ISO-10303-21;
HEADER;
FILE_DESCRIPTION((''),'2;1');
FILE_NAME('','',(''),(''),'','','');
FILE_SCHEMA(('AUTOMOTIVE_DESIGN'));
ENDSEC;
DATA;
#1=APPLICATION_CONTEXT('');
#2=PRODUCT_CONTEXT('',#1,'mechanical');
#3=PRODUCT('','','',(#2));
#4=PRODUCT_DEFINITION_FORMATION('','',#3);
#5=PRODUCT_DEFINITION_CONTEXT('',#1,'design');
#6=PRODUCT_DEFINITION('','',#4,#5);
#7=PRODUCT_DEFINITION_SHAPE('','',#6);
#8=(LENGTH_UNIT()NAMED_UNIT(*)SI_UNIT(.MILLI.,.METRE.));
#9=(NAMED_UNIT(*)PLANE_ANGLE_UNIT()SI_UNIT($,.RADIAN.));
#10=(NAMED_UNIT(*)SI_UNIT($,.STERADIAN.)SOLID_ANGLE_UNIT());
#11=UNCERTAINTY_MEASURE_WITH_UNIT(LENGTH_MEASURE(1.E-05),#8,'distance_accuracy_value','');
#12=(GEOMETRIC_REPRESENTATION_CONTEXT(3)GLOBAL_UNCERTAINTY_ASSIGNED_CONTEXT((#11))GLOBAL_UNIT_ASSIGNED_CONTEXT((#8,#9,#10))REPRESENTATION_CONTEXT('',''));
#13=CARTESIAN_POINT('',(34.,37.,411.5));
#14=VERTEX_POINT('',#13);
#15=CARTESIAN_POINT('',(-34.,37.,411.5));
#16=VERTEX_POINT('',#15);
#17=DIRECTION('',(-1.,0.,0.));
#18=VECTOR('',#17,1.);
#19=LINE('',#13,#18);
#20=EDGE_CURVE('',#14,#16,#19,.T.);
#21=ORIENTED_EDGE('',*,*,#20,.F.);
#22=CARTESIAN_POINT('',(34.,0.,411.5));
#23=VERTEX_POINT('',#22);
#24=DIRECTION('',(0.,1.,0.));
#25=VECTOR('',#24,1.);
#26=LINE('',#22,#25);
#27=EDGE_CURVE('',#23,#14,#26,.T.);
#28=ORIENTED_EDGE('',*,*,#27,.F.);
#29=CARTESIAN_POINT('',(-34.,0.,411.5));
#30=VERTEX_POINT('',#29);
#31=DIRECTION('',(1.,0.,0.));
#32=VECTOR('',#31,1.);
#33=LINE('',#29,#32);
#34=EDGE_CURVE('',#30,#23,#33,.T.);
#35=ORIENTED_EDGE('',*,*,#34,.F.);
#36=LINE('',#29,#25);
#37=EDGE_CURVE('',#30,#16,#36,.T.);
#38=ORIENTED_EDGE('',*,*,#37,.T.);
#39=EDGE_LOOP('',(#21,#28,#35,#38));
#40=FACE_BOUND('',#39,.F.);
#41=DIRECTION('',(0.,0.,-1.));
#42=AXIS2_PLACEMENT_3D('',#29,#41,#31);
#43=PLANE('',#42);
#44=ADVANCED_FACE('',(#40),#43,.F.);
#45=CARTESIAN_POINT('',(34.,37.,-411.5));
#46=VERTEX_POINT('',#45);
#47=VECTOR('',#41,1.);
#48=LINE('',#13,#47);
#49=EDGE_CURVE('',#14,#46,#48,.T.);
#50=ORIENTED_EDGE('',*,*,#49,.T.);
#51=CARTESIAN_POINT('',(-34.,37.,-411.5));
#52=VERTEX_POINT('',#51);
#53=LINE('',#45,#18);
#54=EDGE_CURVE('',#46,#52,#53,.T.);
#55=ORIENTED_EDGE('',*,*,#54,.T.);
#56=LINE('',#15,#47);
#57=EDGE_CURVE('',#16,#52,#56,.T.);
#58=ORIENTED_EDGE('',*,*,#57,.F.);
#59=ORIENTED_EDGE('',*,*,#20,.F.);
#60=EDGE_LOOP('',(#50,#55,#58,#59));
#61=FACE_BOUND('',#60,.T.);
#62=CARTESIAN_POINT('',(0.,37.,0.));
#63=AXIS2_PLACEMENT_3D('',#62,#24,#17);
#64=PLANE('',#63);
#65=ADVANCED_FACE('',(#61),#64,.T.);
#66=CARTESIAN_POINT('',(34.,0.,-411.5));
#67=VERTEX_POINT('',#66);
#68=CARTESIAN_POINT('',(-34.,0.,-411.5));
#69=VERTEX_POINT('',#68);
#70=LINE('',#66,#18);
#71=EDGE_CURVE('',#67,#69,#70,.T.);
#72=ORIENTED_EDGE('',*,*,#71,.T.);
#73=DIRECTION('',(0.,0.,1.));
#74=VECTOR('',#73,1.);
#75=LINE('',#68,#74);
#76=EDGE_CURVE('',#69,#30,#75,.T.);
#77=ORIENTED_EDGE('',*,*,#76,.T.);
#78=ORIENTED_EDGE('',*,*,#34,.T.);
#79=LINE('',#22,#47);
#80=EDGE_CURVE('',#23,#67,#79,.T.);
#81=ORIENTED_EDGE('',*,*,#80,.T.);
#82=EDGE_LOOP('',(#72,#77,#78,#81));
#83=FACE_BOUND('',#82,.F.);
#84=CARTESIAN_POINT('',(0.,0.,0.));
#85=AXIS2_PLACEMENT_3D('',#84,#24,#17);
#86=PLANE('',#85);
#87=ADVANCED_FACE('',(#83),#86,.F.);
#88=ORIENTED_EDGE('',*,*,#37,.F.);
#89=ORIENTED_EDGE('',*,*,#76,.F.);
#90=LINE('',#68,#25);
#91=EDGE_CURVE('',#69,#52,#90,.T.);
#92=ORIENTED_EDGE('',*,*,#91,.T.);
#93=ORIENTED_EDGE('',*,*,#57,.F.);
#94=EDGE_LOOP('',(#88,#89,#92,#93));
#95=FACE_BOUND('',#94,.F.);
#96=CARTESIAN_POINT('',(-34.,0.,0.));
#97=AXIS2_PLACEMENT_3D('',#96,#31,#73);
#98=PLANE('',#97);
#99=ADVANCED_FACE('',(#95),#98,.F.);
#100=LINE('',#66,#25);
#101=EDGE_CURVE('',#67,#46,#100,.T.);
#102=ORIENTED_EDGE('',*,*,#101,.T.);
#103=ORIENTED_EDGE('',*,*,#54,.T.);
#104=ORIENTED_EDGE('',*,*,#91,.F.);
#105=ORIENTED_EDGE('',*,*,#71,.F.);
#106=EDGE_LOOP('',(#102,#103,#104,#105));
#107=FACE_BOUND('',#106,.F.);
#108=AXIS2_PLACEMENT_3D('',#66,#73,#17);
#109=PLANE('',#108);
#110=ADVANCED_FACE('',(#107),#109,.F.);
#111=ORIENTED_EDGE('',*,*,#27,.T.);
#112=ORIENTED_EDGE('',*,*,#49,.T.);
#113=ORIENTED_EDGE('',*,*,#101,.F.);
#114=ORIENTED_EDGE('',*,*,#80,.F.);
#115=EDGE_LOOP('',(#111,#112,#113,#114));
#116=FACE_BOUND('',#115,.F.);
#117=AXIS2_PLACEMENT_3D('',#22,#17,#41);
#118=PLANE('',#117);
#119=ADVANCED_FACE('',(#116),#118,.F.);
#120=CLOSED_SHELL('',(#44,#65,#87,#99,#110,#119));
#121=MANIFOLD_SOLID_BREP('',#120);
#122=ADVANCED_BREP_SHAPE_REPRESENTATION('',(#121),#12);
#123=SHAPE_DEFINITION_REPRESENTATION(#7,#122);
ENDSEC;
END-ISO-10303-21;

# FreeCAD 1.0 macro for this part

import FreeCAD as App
import Part
import Sketcher

V = App.Vector

doc = App.newDocument("Part")
body = doc.addObject("PartDesign::Body", "Body")

# Sketch on XZ plane
sketch1 = doc.addObject("Sketcher::SketchObject", "Sketch")
body.addObject(sketch1)
sketch1.AttachmentSupport = (doc.XZ_Plane, [""])
sketch1.MapMode = "FlatFace"
sketch1.addGeometry(Part.LineSegment(V(-34, 412, 0), V(34, 412, 0)), False)
sketch1.addGeometry(Part.LineSegment(V(34, 412, 0), V(34, -412, 0)), False)
sketch1.addGeometry(Part.LineSegment(V(34, -412, 0), V(-34, -412, 0)), False)
sketch1.addGeometry(Part.LineSegment(V(-34, -412, 0), V(-34, 412, 0)), False)
sketch1.addConstraint(Sketcher.Constraint("Coincident", 0, 2, 1, 1))
sketch1.addConstraint(Sketcher.Constraint("Coincident", 1, 2, 2, 1))
sketch1.addConstraint(Sketcher.Constraint("Coincident", 2, 2, 3, 1))
sketch1.addConstraint(Sketcher.Constraint("Coincident", 3, 2, 0, 1))
sketch1.addConstraint(Sketcher.Constraint("Horizontal", 0))
sketch1.addConstraint(Sketcher.Constraint("Vertical", 1))
sketch1.addConstraint(Sketcher.Constraint("Horizontal", 2))
sketch1.addConstraint(Sketcher.Constraint("Vertical", 3))
sketch1.addConstraint(Sketcher.Constraint("Symmetric", 0, 2, 2, 2, -1, 1))
sketch1.addConstraint(Sketcher.Constraint("DistanceX", 0, 1, 0, 2, 68.0))
sketch1.addConstraint(Sketcher.Constraint("DistanceY", 1, 2, 1, 1, 823.0))
pad1 = doc.addObject("PartDesign::Pad", "Pad")
body.addObject(pad1)
pad1.Profile = sketch1
pad1.Length = 37
pad1.Reversed = True

doc.recompute()
